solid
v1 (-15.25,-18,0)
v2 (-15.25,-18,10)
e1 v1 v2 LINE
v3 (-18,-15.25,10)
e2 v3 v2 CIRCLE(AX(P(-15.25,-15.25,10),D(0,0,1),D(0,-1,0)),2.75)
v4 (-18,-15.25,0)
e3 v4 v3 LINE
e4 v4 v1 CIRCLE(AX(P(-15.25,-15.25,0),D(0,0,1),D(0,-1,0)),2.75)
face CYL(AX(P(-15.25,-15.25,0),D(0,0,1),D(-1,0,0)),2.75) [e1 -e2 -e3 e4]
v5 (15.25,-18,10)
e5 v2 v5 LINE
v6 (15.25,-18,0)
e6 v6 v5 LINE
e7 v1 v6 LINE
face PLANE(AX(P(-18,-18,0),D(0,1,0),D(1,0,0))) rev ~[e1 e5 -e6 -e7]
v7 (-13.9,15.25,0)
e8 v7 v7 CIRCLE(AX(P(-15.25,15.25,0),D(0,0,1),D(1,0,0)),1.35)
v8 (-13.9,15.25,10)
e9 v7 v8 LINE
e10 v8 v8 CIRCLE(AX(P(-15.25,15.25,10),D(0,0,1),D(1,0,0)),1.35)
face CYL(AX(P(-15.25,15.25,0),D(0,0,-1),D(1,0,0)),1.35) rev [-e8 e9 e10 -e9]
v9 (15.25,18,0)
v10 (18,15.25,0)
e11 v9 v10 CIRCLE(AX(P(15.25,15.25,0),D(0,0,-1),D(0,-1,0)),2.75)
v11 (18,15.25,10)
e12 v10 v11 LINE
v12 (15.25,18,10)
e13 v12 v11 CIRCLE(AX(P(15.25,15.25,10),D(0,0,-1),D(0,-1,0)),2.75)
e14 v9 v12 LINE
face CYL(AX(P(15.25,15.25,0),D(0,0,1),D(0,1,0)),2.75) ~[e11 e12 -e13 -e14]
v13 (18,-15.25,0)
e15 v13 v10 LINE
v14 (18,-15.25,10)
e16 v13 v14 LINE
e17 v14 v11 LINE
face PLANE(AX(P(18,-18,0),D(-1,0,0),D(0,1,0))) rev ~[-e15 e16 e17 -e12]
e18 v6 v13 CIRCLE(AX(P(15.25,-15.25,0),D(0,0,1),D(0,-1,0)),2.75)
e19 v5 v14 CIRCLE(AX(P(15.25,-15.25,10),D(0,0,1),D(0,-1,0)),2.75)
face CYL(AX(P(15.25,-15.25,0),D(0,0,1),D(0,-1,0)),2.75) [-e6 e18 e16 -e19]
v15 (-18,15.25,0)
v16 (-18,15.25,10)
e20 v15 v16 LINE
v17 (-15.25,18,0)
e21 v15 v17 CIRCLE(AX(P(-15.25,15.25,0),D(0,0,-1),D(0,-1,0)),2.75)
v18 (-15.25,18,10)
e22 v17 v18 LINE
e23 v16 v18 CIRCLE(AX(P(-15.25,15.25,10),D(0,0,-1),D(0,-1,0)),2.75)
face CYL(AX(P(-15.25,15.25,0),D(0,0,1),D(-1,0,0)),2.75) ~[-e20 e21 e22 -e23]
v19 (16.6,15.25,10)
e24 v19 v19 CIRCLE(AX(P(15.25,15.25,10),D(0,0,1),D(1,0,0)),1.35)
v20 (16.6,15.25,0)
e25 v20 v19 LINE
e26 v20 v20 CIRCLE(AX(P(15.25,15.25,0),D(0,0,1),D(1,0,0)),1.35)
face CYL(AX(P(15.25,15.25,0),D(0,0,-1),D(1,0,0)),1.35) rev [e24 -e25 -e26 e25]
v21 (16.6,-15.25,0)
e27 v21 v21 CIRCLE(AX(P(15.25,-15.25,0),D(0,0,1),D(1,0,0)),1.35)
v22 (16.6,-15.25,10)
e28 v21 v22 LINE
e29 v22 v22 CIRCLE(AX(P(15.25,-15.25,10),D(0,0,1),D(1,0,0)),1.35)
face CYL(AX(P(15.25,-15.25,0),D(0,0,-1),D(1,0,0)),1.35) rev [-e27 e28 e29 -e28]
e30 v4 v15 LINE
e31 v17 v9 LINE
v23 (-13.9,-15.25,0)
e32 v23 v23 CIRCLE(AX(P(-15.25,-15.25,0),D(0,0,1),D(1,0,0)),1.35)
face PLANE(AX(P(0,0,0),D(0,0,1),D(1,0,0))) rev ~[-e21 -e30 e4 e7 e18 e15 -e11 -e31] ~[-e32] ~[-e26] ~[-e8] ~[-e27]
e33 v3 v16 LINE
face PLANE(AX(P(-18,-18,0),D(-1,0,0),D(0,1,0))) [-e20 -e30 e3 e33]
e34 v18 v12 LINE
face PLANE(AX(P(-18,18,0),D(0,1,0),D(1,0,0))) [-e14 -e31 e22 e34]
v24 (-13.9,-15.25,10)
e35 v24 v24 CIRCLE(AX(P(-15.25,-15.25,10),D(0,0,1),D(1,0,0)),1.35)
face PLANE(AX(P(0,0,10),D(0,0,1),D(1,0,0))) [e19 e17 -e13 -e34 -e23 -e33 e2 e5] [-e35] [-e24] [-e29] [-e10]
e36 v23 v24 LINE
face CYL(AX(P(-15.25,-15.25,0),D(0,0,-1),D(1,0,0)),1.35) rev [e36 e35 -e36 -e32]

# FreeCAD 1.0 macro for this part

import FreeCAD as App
import Part
import Sketcher
from FreeCAD import Vector
Q = App.Units.Quantity


def edges_at(feature, points):
    """Names of the edges that pass closest to the given points."""
    edges = feature.Shape.Edges
    near = lambda p: min(range(len(edges)), key=lambda i: edges[i].distToShape(Part.Vertex(*p))[0])
    return sorted({f"Edge{near(p) + 1}" for p in points})

doc = App.newDocument("Part")
body = doc.addObject("PartDesign::Body", "Body")

sketch1 = body.newObject("Sketcher::SketchObject", "Sketch")
sketch1.AttachmentSupport = (doc.getObject("XY_Plane"), [""])
sketch1.MapMode = "FlatFace"
sketch1.addGeometry(Part.LineSegment(Vector(-18, 18, 0), Vector(-18, -18, 0)), False)
sketch1.addGeometry(Part.LineSegment(Vector(-18, -18, 0), Vector(18, -18, 0)), False)
sketch1.addGeometry(Part.LineSegment(Vector(18, -18, 0), Vector(18, 18, 0)), False)
sketch1.addGeometry(Part.LineSegment(Vector(18, 18, 0), Vector(-18, 18, 0)), False)
sketch1.addGeometry(Part.Circle(Vector(-15.2, -15.2, 0), Vector(0, 0, 1), 1.4), False)
sketch1.addGeometry(Part.Circle(Vector(15.2, -15.2, 0), Vector(0, 0, 1), 1.4), False)
sketch1.addGeometry(Part.Circle(Vector(-15.2, 15.2, 0), Vector(0, 0, 1), 1.4), False)
sketch1.addGeometry(Part.Circle(Vector(15.2, 15.2, 0), Vector(0, 0, 1), 1.4), False)
sketch1.addConstraint(Sketcher.Constraint("Coincident", 0, 2, 1, 1))
sketch1.addConstraint(Sketcher.Constraint("Coincident", 1, 2, 2, 1))
sketch1.addConstraint(Sketcher.Constraint("Coincident", 2, 2, 3, 1))
sketch1.addConstraint(Sketcher.Constraint("Coincident", 3, 2, 0, 1))
sketch1.addConstraint(Sketcher.Constraint("Vertical", 0))
sketch1.addConstraint(Sketcher.Constraint("Horizontal", 1))
sketch1.addConstraint(Sketcher.Constraint("Vertical", 2))
sketch1.addConstraint(Sketcher.Constraint("Horizontal", 3))
sketch1.addConstraint(Sketcher.Constraint("Equal", 4, 5))
sketch1.addConstraint(Sketcher.Constraint("Equal", 5, 6))
sketch1.addConstraint(Sketcher.Constraint("Equal", 6, 7))
sketch1.addConstraint(Sketcher.Constraint("Symmetric", 5, 3, 6, 3, -1, 1))
sketch1.addConstraint(Sketcher.Constraint("Symmetric", 4, 3, 7, 3, -1, 1))
sketch1.addConstraint(Sketcher.Constraint("Symmetric", 0, 2, 2, 2, -1, 1))
sketch1.addConstraint(Sketcher.Constraint("Symmetric", 4, 3, 5, 3, -2))
sketch1.addConstraint(Sketcher.Constraint("Equal", 3, 0))
sketch1.addConstraint(Sketcher.Constraint("Diameter", 4, Q("2.7 mm")))
sketch1.addConstraint(Sketcher.Constraint("DistanceX", 1, 1, 1, 2, Q("36 mm")))
sketch1.addConstraint(Sketcher.Constraint("DistanceX", 4, 3, 5, 3, Q("30.5 mm")))
sketch1.addConstraint(Sketcher.Constraint("DistanceY", 4, 3, 6, 3, Q("30.5 mm")))
pad1 = body.newObject("PartDesign::Pad", "Pad")
pad1.Profile = sketch1
pad1.Length = 10
doc.recompute()

fillet = body.newObject("PartDesign::Fillet", "Fillet")
fillet.Base = (pad1, edges_at(pad1, [
    (-18, 18, 5),
    (18, 18, 5),
    (18, -18, 5),
    (-18, -18, 5),
]))
fillet.Radius = 2.75

doc.recompute()
